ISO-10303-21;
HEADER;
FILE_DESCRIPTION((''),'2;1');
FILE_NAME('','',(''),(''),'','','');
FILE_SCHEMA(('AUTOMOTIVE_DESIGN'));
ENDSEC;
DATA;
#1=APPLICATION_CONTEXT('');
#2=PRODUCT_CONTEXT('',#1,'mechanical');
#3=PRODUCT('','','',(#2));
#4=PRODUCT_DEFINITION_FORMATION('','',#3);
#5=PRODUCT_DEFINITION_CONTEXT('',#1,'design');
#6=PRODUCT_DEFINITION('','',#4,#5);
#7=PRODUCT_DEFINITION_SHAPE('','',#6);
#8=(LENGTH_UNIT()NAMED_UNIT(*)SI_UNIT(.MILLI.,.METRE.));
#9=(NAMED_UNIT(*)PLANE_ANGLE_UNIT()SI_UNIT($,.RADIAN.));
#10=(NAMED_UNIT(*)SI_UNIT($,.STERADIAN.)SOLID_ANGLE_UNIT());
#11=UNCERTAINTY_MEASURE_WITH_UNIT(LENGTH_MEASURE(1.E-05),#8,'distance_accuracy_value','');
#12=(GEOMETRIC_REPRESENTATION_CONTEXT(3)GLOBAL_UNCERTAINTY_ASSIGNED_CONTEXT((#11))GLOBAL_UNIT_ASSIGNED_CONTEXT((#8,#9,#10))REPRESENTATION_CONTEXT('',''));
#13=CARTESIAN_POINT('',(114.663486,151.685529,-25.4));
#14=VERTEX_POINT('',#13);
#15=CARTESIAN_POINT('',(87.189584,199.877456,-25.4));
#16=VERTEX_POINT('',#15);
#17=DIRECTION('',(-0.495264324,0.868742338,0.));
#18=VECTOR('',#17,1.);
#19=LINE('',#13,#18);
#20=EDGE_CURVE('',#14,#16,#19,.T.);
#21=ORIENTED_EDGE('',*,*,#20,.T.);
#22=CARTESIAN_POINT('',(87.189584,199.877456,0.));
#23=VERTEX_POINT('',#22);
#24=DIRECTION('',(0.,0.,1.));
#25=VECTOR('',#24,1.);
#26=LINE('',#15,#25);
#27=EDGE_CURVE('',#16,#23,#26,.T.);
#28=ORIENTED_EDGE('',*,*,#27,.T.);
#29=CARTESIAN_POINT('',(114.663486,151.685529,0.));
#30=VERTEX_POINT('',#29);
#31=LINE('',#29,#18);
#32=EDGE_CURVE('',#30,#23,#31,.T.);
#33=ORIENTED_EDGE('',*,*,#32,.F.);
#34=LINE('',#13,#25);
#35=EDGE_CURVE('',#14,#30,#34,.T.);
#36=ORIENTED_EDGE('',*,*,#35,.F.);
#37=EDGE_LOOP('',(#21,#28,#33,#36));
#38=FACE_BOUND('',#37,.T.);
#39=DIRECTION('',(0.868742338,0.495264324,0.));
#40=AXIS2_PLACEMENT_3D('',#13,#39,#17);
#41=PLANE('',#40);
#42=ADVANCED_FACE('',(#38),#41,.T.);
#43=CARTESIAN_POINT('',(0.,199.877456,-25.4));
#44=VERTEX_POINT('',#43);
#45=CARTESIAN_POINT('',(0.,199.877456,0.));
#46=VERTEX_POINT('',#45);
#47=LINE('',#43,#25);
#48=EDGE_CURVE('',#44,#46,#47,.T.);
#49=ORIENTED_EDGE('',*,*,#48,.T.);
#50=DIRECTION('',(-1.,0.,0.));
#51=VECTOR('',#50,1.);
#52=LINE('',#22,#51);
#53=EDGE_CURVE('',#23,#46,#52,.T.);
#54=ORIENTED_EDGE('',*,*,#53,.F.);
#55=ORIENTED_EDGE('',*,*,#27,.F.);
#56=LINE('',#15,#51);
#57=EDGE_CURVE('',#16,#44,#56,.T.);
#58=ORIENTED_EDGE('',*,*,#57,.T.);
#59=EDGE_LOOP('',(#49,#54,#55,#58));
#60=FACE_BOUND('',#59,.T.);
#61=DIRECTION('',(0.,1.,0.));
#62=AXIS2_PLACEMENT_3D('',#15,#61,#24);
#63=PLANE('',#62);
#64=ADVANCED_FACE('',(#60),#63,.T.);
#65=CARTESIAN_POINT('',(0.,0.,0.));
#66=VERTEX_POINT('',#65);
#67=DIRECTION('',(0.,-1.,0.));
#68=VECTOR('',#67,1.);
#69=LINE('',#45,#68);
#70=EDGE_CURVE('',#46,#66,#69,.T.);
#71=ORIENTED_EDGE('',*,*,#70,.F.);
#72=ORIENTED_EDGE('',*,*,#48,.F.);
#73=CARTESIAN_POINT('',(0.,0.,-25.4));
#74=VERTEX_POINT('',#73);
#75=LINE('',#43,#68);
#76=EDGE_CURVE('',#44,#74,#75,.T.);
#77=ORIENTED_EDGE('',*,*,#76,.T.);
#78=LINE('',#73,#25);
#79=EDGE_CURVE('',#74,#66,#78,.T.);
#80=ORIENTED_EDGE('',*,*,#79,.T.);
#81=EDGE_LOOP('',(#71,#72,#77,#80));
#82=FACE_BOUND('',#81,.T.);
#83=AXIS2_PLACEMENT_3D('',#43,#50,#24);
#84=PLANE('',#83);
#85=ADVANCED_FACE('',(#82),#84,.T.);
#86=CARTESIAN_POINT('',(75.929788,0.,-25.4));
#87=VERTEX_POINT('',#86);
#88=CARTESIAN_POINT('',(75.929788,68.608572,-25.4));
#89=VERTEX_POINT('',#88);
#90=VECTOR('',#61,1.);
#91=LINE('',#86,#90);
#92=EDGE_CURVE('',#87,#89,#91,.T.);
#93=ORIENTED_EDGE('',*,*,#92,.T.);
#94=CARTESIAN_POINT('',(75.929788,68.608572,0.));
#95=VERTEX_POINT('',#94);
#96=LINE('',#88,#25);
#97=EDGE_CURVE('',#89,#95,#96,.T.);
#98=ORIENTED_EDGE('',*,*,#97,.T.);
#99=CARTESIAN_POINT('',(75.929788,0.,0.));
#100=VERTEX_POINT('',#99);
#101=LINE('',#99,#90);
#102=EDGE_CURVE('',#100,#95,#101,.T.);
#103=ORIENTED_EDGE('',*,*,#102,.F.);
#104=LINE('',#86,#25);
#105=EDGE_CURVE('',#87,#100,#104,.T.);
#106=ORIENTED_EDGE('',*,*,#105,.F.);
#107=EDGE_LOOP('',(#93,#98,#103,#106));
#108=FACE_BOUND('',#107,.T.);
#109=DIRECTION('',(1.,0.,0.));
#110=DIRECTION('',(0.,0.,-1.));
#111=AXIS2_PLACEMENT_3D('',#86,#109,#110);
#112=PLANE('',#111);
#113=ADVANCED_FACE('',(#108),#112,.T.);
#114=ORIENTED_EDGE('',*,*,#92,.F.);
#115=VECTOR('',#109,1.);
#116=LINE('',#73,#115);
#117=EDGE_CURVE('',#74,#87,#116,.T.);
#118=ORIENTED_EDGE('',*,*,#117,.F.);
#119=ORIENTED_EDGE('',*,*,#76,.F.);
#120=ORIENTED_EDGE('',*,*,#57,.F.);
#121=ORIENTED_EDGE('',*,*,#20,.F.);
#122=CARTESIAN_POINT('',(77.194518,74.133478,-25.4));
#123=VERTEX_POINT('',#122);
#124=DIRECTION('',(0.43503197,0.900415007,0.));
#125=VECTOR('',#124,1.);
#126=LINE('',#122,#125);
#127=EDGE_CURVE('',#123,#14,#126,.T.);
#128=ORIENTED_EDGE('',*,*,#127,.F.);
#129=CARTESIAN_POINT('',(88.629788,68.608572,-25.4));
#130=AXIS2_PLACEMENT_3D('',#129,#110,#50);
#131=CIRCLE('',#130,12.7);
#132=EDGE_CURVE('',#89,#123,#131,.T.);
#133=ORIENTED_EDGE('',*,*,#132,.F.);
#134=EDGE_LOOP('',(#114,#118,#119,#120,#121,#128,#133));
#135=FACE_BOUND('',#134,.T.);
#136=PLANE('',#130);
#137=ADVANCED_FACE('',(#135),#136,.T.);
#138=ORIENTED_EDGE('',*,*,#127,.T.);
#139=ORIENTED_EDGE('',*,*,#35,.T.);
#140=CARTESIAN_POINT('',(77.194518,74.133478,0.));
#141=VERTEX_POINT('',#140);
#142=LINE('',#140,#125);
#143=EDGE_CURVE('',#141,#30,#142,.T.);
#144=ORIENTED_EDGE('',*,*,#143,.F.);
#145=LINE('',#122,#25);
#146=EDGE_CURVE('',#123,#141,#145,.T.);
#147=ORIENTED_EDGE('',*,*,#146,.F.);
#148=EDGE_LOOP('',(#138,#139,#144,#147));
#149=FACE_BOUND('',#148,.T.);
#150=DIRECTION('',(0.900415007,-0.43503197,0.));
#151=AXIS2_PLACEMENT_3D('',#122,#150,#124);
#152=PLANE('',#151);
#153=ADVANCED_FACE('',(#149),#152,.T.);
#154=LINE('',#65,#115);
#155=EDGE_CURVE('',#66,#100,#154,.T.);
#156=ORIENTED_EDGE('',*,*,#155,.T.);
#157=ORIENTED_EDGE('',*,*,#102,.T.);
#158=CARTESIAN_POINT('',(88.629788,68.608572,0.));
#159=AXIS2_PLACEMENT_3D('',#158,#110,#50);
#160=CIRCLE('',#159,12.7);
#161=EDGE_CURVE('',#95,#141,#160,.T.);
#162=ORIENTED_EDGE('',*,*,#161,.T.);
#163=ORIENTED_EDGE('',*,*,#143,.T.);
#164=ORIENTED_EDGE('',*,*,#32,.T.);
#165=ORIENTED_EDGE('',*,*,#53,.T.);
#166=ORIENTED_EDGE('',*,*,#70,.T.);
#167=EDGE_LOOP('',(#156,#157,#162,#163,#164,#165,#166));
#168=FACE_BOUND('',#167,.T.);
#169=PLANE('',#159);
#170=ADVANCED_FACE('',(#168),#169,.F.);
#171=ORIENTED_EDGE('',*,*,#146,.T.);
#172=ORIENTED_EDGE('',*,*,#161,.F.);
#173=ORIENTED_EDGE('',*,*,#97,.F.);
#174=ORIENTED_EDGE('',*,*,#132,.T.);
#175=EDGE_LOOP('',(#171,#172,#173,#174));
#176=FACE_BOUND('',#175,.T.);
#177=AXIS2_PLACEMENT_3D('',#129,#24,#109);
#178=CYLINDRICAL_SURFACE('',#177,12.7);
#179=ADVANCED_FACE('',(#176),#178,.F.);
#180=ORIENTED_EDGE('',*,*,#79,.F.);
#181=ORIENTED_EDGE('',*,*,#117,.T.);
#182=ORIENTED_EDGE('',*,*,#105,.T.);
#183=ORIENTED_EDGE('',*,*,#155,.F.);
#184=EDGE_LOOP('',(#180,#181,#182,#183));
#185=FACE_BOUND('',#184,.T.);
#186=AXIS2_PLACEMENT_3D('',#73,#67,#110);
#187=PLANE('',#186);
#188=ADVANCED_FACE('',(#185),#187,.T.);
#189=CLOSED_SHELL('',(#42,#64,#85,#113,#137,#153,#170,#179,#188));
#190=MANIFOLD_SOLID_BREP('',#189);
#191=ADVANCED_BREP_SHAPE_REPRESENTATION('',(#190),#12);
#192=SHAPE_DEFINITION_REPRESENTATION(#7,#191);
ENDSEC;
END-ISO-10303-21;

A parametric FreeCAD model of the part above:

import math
import FreeCAD as App
import Part
import Sketcher
Q = App.Units.Quantity

doc = App.newDocument("Part")
body = doc.addObject("PartDesign::Body", "Body")

sketch1 = body.newObject("Sketcher::SketchObject", "Sketch")
sketch1.AttachmentSupport = (doc.getObject("XY_Plane"), [""])
sketch1.MapMode = "FlatFace"
sketch1.addGeometry(Part.LineSegment(App.Vector(0, 0, 0), App.Vector(75.929788, 0, 0)), False)
sketch1.addGeometry(Part.LineSegment(App.Vector(75.929788, 0, 0), App.Vector(75.929788, 68.608572, 0)), False)
sketch1.addGeometry(Part.ArcOfCircle(Part.Circle(App.Vector(88.629788, 68.608572, 0), App.Vector(0, 0, 1), 12.7), math.radians(154.212672), math.radians(180)), False)
sketch1.addGeometry(Part.LineSegment(App.Vector(77.194518, 74.133478, 0), App.Vector(114.663486, 151.685529, 0)), False)
sketch1.addGeometry(Part.LineSegment(App.Vector(114.663486, 151.685529, 0), App.Vector(87.189584, 199.877456, 0)), False)
sketch1.addGeometry(Part.LineSegment(App.Vector(87.189584, 199.877456, 0), App.Vector(0, 199.877456, 0)), False)
sketch1.addGeometry(Part.LineSegment(App.Vector(0, 199.877456, 0), App.Vector(0, 0, 0)), False)
sketch1.addConstraint(Sketcher.Constraint("Coincident", 0, 2, 1, 1))
sketch1.addConstraint(Sketcher.Constraint("Tangent", 1, 2, 2, 2))
sketch1.addConstraint(Sketcher.Constraint("Tangent", 2, 1, 3, 1))
sketch1.addConstraint(Sketcher.Constraint("Coincident", 3, 2, 4, 1))
sketch1.addConstraint(Sketcher.Constraint("Coincident", 4, 2, 5, 1))
sketch1.addConstraint(Sketcher.Constraint("Coincident", 5, 2, 6, 1))
sketch1.addConstraint(Sketcher.Constraint("Coincident", 6, 2, 0, 1))
sketch1.addConstraint(Sketcher.Constraint("Horizontal", 0))
sketch1.addConstraint(Sketcher.Constraint("Vertical", 1))
sketch1.addConstraint(Sketcher.Constraint("Horizontal", 5))
sketch1.addConstraint(Sketcher.Constraint("Vertical", 6))
sketch1.addConstraint(Sketcher.Constraint("Coincident", 6, 2, -1, 1))
sketch1.addConstraint(Sketcher.Constraint("Radius", 2, Q("0.5 in")))
sketch1.addConstraint(Sketcher.Constraint("DistanceX", 0, 1, 0, 2, 75.929788))
sketch1.addConstraint(Sketcher.Constraint("DistanceX", 4, 2, 3, 2, 27.473902))
sketch1.addConstraint(Sketcher.Constraint("Distance", 3, 86.12923))
sketch1.addConstraint(Sketcher.Constraint("Distance", 4, 55.47321))
sketch1.addConstraint(Sketcher.Constraint("DistanceX", 5, 2, 5, 1, 87.189584))
sketch1.addConstraint(Sketcher.Constraint("DistanceY", 1, 1, 1, 2, 68.608572))
pad1 = body.newObject("PartDesign::Pad", "Pad")
pad1.Profile = sketch1
pad1.Length = Q("1 in")
pad1.Reversed = True

doc.recompute()
